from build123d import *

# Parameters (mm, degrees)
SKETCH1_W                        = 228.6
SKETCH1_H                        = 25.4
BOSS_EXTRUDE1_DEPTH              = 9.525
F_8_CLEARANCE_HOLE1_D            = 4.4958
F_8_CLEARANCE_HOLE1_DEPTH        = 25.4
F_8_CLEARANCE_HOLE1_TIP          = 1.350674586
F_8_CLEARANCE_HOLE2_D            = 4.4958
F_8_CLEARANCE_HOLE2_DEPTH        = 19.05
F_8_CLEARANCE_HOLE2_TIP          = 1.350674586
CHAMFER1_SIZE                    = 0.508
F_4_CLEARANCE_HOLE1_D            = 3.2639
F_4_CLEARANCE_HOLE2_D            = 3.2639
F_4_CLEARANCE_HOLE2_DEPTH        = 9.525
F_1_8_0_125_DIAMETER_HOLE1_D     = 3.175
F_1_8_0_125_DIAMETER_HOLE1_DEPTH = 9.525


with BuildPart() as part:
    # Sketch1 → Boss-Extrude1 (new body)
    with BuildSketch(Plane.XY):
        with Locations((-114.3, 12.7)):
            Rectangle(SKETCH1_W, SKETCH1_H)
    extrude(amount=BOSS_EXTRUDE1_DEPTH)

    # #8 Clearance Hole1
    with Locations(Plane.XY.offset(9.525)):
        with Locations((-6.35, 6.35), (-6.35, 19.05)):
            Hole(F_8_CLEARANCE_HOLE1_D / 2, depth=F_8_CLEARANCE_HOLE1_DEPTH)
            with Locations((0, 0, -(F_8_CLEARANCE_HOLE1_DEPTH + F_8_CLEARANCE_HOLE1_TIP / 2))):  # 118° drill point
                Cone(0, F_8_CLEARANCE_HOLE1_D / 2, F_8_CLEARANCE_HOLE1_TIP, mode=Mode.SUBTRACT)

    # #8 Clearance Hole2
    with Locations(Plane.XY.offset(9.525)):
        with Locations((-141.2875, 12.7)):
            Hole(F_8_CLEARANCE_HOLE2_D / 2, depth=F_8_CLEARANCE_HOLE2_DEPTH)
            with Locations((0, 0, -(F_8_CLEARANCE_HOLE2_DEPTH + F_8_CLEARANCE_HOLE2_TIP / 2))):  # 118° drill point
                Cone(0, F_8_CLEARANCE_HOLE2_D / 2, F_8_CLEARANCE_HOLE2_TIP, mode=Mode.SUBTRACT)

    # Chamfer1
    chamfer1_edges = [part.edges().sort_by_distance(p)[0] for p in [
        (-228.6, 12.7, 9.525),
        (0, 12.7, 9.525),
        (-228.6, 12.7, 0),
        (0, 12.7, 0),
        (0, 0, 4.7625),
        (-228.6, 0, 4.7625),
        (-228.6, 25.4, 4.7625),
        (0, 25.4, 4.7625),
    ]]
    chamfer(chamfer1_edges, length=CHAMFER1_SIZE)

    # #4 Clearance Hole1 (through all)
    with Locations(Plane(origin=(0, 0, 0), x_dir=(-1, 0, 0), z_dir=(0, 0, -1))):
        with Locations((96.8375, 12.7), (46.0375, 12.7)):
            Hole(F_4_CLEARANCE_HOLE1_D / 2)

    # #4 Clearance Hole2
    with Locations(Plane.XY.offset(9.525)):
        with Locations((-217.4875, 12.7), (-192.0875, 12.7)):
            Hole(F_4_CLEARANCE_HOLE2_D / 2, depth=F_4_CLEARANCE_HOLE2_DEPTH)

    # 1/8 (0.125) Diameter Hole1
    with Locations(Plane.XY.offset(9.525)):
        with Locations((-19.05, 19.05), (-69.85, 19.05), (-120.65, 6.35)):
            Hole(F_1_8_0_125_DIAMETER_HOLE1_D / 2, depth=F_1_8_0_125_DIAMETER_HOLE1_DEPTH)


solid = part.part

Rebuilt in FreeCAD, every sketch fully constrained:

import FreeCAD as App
import Part
import Sketcher

V = App.Vector
Q = App.Units.Quantity


def edges_at(feature, points):
    """Names of the edges that pass closest to the given points."""
    edges = feature.Shape.Edges
    near = lambda p: min(range(len(edges)), key=lambda i: edges[i].distToShape(Part.Vertex(*p))[0])
    return sorted({f"Edge{near(p) + 1}" for p in points})

doc = App.newDocument("Part")
body = doc.addObject("PartDesign::Body", "Body")

sketch1 = doc.addObject("Sketcher::SketchObject", "Sketch")
body.addObject(sketch1)
sketch1.AttachmentSupport = (doc.XY_Plane, [""])
sketch1.MapMode = "FlatFace"
sketch1.addGeometry([
    Part.LineSegment(V(-228.6, 25.4, 0), V(-228.6, 0, 0)),
    Part.LineSegment(V(-228.6, 0, 0), V(0, 0, 0)),
    Part.LineSegment(V(0, 0, 0), V(0, 25.4, 0)),
    Part.LineSegment(V(0, 25.4, 0), V(-228.6, 25.4, 0)),
], False)
sketch1.addConstraint([
    Sketcher.Constraint("Coincident", 0, 2, 1, 1),
    Sketcher.Constraint("Coincident", 1, 2, 2, 1),
    Sketcher.Constraint("Coincident", 2, 2, 3, 1),
    Sketcher.Constraint("Coincident", 3, 2, 0, 1),
    Sketcher.Constraint("Vertical", 0),
    Sketcher.Constraint("Horizontal", 1),
    Sketcher.Constraint("Vertical", 2),
    Sketcher.Constraint("Horizontal", 3),
    Sketcher.Constraint("Coincident", 1, 2, -1, 1),
    Sketcher.Constraint("DistanceX", 1, 1, 1, 2, Q("9 in")),
    Sketcher.Constraint("DistanceY", 0, 2, 0, 1, Q("1 in")),
])
pad1 = doc.addObject("PartDesign::Pad", "Pad")
body.addObject(pad1)
pad1.Profile = sketch1
pad1.Length = Q("0.375 in")

sketch2 = doc.addObject("Sketcher::SketchObject", "Sketch001")
body.addObject(sketch2)
sketch2.AttachmentSupport = (doc.XY_Plane, [""])
sketch2.MapMode = "FlatFace"
sketch2.AttachmentOffset = App.Placement(V(0, 0, 0.375 * 25.4), App.Rotation())
sketch2.addGeometry([
    Part.Circle(V(-6.35, 6.35, 0), V(0, 0, 1), 2.2479),
    Part.Circle(V(-6.35, 19.05, 0), V(0, 0, 1), 2.2479),
], False)
sketch2.addConstraint([
    Sketcher.Constraint("Equal", 0, 1),
    Sketcher.Constraint("Vertical", 0, 3, 1, 3),
    Sketcher.Constraint("Diameter", 0, Q("0.177 in")),
    Sketcher.Constraint("DistanceY", 0, 3, 1, 3, Q("0.5 in")),
    Sketcher.Constraint("DistanceX", 0, 3, -1, 1, Q("0.25 in")),
    Sketcher.Constraint("DistanceY", -1, 1, 0, 3, Q("0.25 in")),
])
doc.recompute()
hole = doc.addObject("PartDesign::Hole", "Hole")
body.addObject(hole)
hole.Profile = sketch2
hole.ThreadType = "None"
hole.Diameter = Q("0.177 in")
hole.DepthType = "Dimension"
hole.Depth = Q("1 in")
hole.DrillPoint = "Angled"
hole.DrillPointAngle = 118

sketch3 = doc.addObject("Sketcher::SketchObject", "Sketch002")
body.addObject(sketch3)
sketch3.AttachmentSupport = (doc.XY_Plane, [""])
sketch3.MapMode = "FlatFace"
sketch3.AttachmentOffset = App.Placement(V(0, 0, 0.375 * 25.4), App.Rotation())
sketch3.addGeometry(Part.Circle(V(-141.2875, 12.7, 0), V(0, 0, 1), 2.2479), False)
sketch3.addConstraint([
    Sketcher.Constraint("Diameter", 0, Q("0.177 in")),
    Sketcher.Constraint("DistanceY", -1, 1, 0, 3, Q("0.5 in")),
    Sketcher.Constraint("DistanceX", 0, 3, -1, 1, Q("5.5625 in")),
])
doc.recompute()
hole2 = doc.addObject("PartDesign::Hole", "Hole001")
body.addObject(hole2)
hole2.Profile = sketch3
hole2.ThreadType = "None"
hole2.Diameter = Q("0.177 in")
hole2.DepthType = "Dimension"
hole2.Depth = Q("0.75 in")
hole2.DrillPoint = "Angled"
hole2.DrillPointAngle = 118
doc.recompute()

chamfer = doc.addObject("PartDesign::Chamfer", "Chamfer")
body.addObject(chamfer)
chamfer.Base = (hole2, edges_at(hole2, [
    (-228.6, 12.7, 9.525),
    (0, 12.7, 9.525),
    (-228.6, 12.7, 0),
    (0, 12.7, 0),
    (0, 0, 4.763),
    (-228.6, 0, 4.763),
    (-228.6, 25.4, 4.763),
    (0, 25.4, 4.763),
]))
chamfer.Size = Q("0.02 in")

sketch4 = doc.addObject("Sketcher::SketchObject", "Sketch003")
body.addObject(sketch4)
sketch4.AttachmentSupport = (doc.XY_Plane, [""])
sketch4.MapMode = "FlatFace"
sketch4.addGeometry([
    Part.Circle(V(-96.8375, 12.7, 0), V(0, 0, 1), 1.63195),
    Part.Circle(V(-46.0375, 12.7, 0), V(0, 0, 1), 1.63195),
], False)
sketch4.addConstraint([
    Sketcher.Constraint("Equal", 0, 1),
    Sketcher.Constraint("Horizontal", 0, 3, 1, 3),
    Sketcher.Constraint("DistanceX", 0, 3, 1, 3, Q("2 in")),
    Sketcher.Constraint("Diameter", 0, Q("0.1285 in")),
    Sketcher.Constraint("DistanceY", -1, 1, 0, 3, Q("0.5 in")),
    Sketcher.Constraint("DistanceX", 0, 3, -1, 1, Q("3.8125 in")),
])
doc.recompute()
hole3 = doc.addObject("PartDesign::Hole", "Hole002")
body.addObject(hole3)
hole3.Profile = sketch4
hole3.ThreadType = "None"
hole3.Diameter = Q("0.1285 in")
hole3.DepthType = "ThroughAll"
hole3.Reversed = True

sketch5 = doc.addObject("Sketcher::SketchObject", "Sketch004")
body.addObject(sketch5)
sketch5.AttachmentSupport = (doc.XY_Plane, [""])
sketch5.MapMode = "FlatFace"
sketch5.AttachmentOffset = App.Placement(V(0, 0, 0.375 * 25.4), App.Rotation())
sketch5.addGeometry([
    Part.Circle(V(-217.4875, 12.7, 0), V(0, 0, 1), 1.63195),
    Part.Circle(V(-192.0875, 12.7, 0), V(0, 0, 1), 1.63195),
], False)
sketch5.addConstraint([
    Sketcher.Constraint("Equal", 0, 1),
    Sketcher.Constraint("Horizontal", 0, 3, 1, 3),
    Sketcher.Constraint("DistanceX", 0, 3, 1, 3, Q("1 in")),
    Sketcher.Constraint("Diameter", 0, Q("0.1285 in")),
    Sketcher.Constraint("DistanceY", -1, 1, 0, 3, Q("0.5 in")),
    Sketcher.Constraint("DistanceX", 0, 3, -1, 1, Q("8.5625 in")),
])
doc.recompute()
hole4 = doc.addObject("PartDesign::Hole", "Hole003")
body.addObject(hole4)
hole4.Profile = sketch5
hole4.ThreadType = "None"
hole4.Diameter = Q("0.1285 in")
hole4.DepthType = "Dimension"
hole4.Depth = Q("0.375 in")
hole4.DrillPoint = "Flat"

sketch6 = doc.addObject("Sketcher::SketchObject", "Sketch005")
body.addObject(sketch6)
sketch6.AttachmentSupport = (doc.XY_Plane, [""])
sketch6.MapMode = "FlatFace"
sketch6.AttachmentOffset = App.Placement(V(0, 0, 0.375 * 25.4), App.Rotation())
sketch6.addGeometry([
    Part.Circle(V(-19.05, 19.05, 0), V(0, 0, 1), 1.5875),
    Part.Circle(V(-69.85, 19.05, 0), V(0, 0, 1), 1.5875),
    Part.Circle(V(-120.65, 6.35, 0), V(0, 0, 1), 1.5875),
], False)
sketch6.addConstraint([
    Sketcher.Constraint("Equal", 0, 1),
    Sketcher.Constraint("Equal", 1, 2),
    Sketcher.Constraint("Horizontal", 0, 3, 1, 3),
    Sketcher.Constraint("Diameter", 0, Q("0.125 in")),
    Sketcher.Constraint("DistanceX", 1, 3, 0, 3, Q("2 in")),
    Sketcher.Constraint("DistanceX", 2, 3, 1, 3, Q("2 in")),
    Sketcher.Constraint("DistanceY", 2, 3, 1, 3, Q("0.5 in")),
    Sketcher.Constraint("DistanceX", 0, 3, -1, 1, Q("0.75 in")),
    Sketcher.Constraint("DistanceY", -1, 1, 0, 3, Q("0.75 in")),
])
doc.recompute()
hole5 = doc.addObject("PartDesign::Hole", "Hole004")
body.addObject(hole5)
hole5.Profile = sketch6
hole5.ThreadType = "None"
hole5.Diameter = Q("0.125 in")
hole5.DepthType = "Dimension"
hole5.Depth = Q("0.375 in")
hole5.DrillPoint = "Flat"

doc.recompute()
